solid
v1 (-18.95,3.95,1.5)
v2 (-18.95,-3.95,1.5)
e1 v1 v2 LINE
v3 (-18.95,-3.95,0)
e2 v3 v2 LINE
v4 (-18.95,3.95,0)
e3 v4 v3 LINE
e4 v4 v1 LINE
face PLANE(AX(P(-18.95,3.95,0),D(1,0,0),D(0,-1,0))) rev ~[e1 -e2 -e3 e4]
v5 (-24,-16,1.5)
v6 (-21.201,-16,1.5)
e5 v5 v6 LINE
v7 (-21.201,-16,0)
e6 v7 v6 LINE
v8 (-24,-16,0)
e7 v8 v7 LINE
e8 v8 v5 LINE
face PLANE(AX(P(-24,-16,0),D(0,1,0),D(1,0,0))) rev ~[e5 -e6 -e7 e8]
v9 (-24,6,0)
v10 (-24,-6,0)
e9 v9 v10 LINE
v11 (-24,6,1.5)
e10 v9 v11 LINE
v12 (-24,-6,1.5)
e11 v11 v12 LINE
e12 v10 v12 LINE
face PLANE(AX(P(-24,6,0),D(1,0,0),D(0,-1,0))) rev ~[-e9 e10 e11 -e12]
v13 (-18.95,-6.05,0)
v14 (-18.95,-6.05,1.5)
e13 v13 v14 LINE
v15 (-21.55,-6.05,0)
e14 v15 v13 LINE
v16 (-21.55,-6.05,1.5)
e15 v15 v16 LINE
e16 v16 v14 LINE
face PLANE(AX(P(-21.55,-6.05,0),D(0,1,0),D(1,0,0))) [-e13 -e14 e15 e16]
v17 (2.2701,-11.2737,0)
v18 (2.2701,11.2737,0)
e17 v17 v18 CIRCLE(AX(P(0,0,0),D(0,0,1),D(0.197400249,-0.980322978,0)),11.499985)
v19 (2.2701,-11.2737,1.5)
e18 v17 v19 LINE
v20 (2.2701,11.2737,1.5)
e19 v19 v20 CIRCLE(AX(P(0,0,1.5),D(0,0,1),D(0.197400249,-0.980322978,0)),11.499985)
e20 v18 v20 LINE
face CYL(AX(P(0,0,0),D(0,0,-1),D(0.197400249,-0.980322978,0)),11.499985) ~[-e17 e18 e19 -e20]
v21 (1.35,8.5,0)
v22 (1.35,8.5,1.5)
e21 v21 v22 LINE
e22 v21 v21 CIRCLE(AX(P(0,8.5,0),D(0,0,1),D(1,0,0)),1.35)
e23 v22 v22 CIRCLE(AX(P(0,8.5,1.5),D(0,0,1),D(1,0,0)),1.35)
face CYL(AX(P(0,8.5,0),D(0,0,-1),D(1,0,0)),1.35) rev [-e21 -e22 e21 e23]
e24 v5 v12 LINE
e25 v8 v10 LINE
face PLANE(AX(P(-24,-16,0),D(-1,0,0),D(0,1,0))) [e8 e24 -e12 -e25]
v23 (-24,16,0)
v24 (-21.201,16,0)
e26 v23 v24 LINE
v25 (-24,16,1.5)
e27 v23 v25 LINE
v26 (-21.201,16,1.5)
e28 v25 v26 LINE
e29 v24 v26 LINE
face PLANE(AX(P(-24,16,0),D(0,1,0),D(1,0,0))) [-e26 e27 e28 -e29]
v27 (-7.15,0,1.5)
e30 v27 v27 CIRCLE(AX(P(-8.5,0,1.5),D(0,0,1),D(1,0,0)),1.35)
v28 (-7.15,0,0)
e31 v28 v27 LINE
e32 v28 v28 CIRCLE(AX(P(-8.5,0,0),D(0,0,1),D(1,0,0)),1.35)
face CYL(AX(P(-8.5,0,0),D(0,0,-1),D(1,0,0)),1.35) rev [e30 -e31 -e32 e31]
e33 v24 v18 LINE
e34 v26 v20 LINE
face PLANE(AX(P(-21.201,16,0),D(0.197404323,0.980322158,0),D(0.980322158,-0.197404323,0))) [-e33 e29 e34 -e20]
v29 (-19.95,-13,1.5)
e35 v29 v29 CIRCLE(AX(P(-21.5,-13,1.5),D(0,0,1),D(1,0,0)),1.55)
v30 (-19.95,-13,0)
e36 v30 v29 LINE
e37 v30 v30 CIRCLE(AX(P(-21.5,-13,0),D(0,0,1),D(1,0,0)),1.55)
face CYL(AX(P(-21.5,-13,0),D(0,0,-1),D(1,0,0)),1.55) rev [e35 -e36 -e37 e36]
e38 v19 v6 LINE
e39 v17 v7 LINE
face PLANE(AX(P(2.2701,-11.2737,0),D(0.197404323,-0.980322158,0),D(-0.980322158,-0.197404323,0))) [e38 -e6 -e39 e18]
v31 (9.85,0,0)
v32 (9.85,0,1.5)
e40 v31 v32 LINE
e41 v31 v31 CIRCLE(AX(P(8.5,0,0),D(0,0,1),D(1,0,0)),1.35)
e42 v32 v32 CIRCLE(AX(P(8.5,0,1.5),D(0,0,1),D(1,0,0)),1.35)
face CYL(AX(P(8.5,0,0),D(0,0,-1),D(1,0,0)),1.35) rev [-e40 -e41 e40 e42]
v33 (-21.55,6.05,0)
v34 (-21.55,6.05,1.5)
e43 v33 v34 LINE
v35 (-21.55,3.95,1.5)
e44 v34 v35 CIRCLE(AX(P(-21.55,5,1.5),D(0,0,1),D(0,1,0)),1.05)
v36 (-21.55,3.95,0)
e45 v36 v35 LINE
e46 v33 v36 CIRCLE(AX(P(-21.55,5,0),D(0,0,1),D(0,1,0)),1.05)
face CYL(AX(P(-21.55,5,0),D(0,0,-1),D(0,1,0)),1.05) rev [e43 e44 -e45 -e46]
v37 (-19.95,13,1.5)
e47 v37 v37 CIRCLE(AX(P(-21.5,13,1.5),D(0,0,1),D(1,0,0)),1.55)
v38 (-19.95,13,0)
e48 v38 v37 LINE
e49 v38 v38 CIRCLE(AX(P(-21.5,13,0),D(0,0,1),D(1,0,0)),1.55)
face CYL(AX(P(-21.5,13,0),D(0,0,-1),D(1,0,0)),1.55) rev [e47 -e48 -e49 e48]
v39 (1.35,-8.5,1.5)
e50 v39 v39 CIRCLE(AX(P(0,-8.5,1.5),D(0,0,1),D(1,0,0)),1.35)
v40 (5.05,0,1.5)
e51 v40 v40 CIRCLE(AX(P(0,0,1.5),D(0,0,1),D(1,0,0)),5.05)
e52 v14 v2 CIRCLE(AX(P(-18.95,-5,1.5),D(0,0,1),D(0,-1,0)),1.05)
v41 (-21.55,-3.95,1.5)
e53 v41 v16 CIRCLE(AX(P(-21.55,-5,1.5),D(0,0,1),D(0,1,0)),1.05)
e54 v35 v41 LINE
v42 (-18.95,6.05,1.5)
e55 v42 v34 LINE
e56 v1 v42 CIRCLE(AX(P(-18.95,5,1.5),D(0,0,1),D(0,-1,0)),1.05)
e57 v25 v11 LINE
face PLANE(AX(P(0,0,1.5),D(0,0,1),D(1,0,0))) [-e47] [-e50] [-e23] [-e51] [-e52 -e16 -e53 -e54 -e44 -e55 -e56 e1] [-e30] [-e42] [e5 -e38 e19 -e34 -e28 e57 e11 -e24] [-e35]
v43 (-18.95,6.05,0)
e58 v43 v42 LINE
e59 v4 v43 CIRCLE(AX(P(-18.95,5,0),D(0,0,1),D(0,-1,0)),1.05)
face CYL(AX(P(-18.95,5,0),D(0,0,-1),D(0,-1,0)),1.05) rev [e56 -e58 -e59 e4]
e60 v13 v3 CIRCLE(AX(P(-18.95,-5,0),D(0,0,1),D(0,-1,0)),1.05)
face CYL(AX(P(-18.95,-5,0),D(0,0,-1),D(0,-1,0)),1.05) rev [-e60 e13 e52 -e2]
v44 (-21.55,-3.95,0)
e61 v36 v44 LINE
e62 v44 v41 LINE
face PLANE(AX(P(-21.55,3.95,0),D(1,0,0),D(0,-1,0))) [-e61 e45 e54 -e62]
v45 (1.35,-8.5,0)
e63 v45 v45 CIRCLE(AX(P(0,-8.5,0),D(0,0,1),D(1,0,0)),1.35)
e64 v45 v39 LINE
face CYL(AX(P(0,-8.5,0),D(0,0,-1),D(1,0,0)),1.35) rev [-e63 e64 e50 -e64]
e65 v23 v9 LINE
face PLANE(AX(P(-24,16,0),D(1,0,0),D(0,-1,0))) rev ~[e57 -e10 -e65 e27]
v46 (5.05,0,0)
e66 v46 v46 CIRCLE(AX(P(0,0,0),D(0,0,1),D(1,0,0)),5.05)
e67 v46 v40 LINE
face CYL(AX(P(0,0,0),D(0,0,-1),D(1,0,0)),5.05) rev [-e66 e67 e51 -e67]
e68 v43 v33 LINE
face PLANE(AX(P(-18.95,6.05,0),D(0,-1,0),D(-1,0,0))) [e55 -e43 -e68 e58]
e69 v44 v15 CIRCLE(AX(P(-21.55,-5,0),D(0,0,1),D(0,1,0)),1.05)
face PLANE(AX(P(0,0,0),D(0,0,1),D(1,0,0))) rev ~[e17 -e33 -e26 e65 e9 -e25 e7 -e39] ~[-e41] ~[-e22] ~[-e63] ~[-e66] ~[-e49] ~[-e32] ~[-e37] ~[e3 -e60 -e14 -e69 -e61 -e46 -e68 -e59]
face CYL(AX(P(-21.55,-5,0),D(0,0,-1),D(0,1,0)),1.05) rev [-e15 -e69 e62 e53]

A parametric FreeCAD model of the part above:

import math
import FreeCAD as App
import Part
import Sketcher

V = App.Vector
Q = App.Units.Quantity

doc = App.newDocument("Part")
body = doc.addObject("PartDesign::Body", "Body")

# Sketch on XY plane
sketch1 = body.newObject("Sketcher::SketchObject", "Sketch")
sketch1.AttachmentSupport = (doc.getObject("XY_Plane"), [""])
sketch1.MapMode = "FlatFace"
sketch1.addGeometry([
    Part.LineSegment(V(-24, 16, 0), V(-24, -16, 0)),  # 0
    Part.LineSegment(V(-24, -16, 0), V(-21.2, -16, 0)),  # 1
    Part.LineSegment(V(-21.2, -16, 0), V(2.3, -11.3, 0)),  # 2
    Part.ArcOfCircle(Part.Circle(V(0, 0, 0), V(0, 0, 1), 11.5), math.radians(-79), math.radians(79)),  # 3
    Part.LineSegment(V(2.3, 11.3, 0), V(-21.2, 16, 0)),  # 4
    Part.LineSegment(V(-21.2, 16, 0), V(-24, 16, 0)),  # 5
    Part.Circle(V(-21.5, -13, 0), V(0, 0, 1), 1.6),  # 6
    Part.Circle(V(0, -8.5, 0), V(0, 0, 1), 1.4),  # 7
    Part.LineSegment(V(-21.6, 6, 0), V(-18.9, 6, 0)),  # 8
    Part.ArcOfCircle(Part.Circle(V(-18.9, 5, 0), V(0, 0, 1), 1), math.radians(-90), math.radians(90)),  # 9
    Part.LineSegment(V(-18.9, 4, 0), V(-18.9, -4, 0)),  # 10
    Part.ArcOfCircle(Part.Circle(V(-18.9, -5, 0), V(0, 0, 1), 1), math.radians(-90), math.radians(90)),  # 11
    Part.LineSegment(V(-18.9, -6, 0), V(-21.6, -6, 0)),  # 12
    Part.ArcOfCircle(Part.Circle(V(-21.6, -5, 0), V(0, 0, 1), 1), math.radians(90), math.radians(270)),  # 13
    Part.LineSegment(V(-21.6, -4, 0), V(-21.6, 4, 0)),  # 14
    Part.ArcOfCircle(Part.Circle(V(-21.6, 5, 0), V(0, 0, 1), 1.1), math.radians(90), math.radians(270)),  # 15
    Part.Circle(V(-8.5, 0, 0), V(0, 0, 1), 1.4),  # 16
    Part.Circle(V(-21.5, 13, 0), V(0, 0, 1), 1.6),  # 17
    Part.Circle(V(0, 0, 0), V(0, 0, 1), 5),  # 18
    Part.Circle(V(8.5, 0, 0), V(0, 0, 1), 1.4),  # 19
    Part.Circle(V(0, 8.5, 0), V(0, 0, 1), 1.4),  # 20
], False)
sketch1.addConstraint([
    Sketcher.Constraint("Coincident", 0, 2, 1, 1),
    Sketcher.Constraint("Coincident", 1, 2, 2, 1),
    Sketcher.Constraint("Tangent", 2, 2, 3, 1),
    Sketcher.Constraint("Tangent", 3, 2, 4, 1),
    Sketcher.Constraint("Coincident", 4, 2, 5, 1),
    Sketcher.Constraint("Coincident", 5, 2, 0, 1),
    Sketcher.Constraint("Tangent", 8, 2, 9, 2),
    Sketcher.Constraint("Coincident", 9, 1, 10, 1),
    Sketcher.Constraint("Coincident", 10, 2, 11, 2),
    Sketcher.Constraint("Tangent", 11, 1, 12, 1),
    Sketcher.Constraint("Tangent", 12, 2, 13, 2),
    Sketcher.Constraint("Coincident", 13, 1, 14, 1),
    Sketcher.Constraint("Coincident", 14, 2, 15, 2),
    Sketcher.Constraint("Tangent", 15, 1, 8, 1),
    Sketcher.Constraint("Vertical", 0),
    Sketcher.Constraint("Horizontal", 1),
    Sketcher.Constraint("Horizontal", 5),
    Sketcher.Constraint("Horizontal", 8),
    Sketcher.Constraint("Vertical", 10),
    Sketcher.Constraint("Horizontal", 12),
    Sketcher.Constraint("Vertical", 14),
    Sketcher.Constraint("Coincident", 3, 3, -1, 1),
    Sketcher.Constraint("Coincident", 18, 3, -1, 1),
    Sketcher.Constraint("Equal", 9, 11),
    Sketcher.Constraint("Equal", 11, 13),
    Sketcher.Constraint("Equal", 13, 15),
    Sketcher.Constraint("Equal", 7, 16),
    Sketcher.Constraint("Equal", 6, 17),
    Sketcher.Constraint("Equal", 16, 19),
    Sketcher.Constraint("Equal", 19, 20),
    Sketcher.Constraint("Symmetric", 16, 3, 19, 3, -1, 1),
    Sketcher.Constraint("Symmetric", 7, 3, 20, 3, -1, 1),
    Sketcher.Constraint("Symmetric", 9, 3, 11, 3, -1),
    Sketcher.Constraint("Symmetric", 6, 3, 17, 3, -1),
    Sketcher.Constraint("Symmetric", 1, 2, 4, 2, -1),
    Sketcher.Constraint("PointOnObject", 7, 3, -2),
    Sketcher.Constraint("PointOnObject", 16, 3, -1),
    Sketcher.Constraint("Vertical", 13, 3, 15, 3),
    Sketcher.Constraint("Vertical", 8, 2, 9, 1),
    Sketcher.Constraint("Vertical", 12, 2, 13, 1),
    Sketcher.Constraint("Diameter", 6, Q("3.1 mm")),
    Sketcher.Constraint("Diameter", 7, Q("2.7 mm")),
    Sketcher.Constraint("Diameter", 18, Q("10.1 mm")),
    Sketcher.Constraint("Radius", 9, Q("1.05 mm")),
    Sketcher.Constraint("DistanceY", 0, 2, -1, 1, Q("16 mm")),
    Sketcher.Constraint("DistanceY", 11, 3, 9, 3, Q("10 mm")),
    Sketcher.Constraint("DistanceY", 0, 2, 6, 3, Q("3 mm")),
    Sketcher.Constraint("DistanceY", 7, 3, -1, 1, Q("8.5 mm")),
    Sketcher.Constraint("DistanceX", 16, 3, -1, 1, Q("8.5 mm")),
    Sketcher.Constraint("Radius", 3, Q("11.5 mm")),
    Sketcher.Constraint("DistanceX", 0, 2, 6, 3, Q("2.5 mm")),
    Sketcher.Constraint("DistanceX", 13, 3, 6, 3, Q("0.05 mm")),
    Sketcher.Constraint("DistanceX", 8, 1, 8, 2, Q("2.6 mm")),
    Sketcher.Constraint("DistanceX", 0, 2, -1, 1, Q("24 mm")),
    Sketcher.Constraint("DistanceX", 1, 1, 1, 2, Q("2.799 mm")),
])
pad1 = body.newObject("PartDesign::Pad", "Pad")
pad1.Profile = sketch1
pad1.Length = 1.5

doc.recompute()
